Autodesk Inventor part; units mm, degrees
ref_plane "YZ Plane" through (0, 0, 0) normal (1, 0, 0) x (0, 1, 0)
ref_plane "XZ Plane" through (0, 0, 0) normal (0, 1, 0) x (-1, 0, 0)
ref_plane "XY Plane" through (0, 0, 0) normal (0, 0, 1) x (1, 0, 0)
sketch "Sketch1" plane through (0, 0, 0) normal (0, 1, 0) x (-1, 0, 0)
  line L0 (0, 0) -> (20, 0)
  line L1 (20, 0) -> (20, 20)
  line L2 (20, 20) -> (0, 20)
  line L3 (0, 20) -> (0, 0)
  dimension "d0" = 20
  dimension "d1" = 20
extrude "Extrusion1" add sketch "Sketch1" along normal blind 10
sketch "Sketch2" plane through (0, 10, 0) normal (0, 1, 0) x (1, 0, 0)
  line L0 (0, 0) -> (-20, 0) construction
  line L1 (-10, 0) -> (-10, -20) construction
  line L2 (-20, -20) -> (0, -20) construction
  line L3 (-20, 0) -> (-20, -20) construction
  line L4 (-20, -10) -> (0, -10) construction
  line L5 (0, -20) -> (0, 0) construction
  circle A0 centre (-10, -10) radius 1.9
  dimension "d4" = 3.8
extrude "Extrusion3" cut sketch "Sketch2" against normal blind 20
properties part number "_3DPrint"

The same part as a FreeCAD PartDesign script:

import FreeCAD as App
import Part
import Sketcher

V = App.Vector
Q = App.Units.Quantity

doc = App.newDocument("Part")
body = doc.addObject("PartDesign::Body", "Body")

# Sketch on XZ plane
sketch1 = doc.addObject("Sketcher::SketchObject", "Sketch")
body.addObject(sketch1)
sketch1.AttachmentSupport = (doc.XZ_Plane, [""])
sketch1.MapMode = "FlatFace"
sketch1.addGeometry([
    Part.LineSegment(V(0, 20, 0), V(0, 0, 0)),
    Part.LineSegment(V(0, 0, 0), V(-20, 0, 0)),
    Part.LineSegment(V(-20, 0, 0), V(-20, 20, 0)),
    Part.LineSegment(V(-20, 20, 0), V(0, 20, 0)),
], False)
sketch1.addConstraint([
    Sketcher.Constraint("Coincident", 0, 2, 1, 1),
    Sketcher.Constraint("Coincident", 1, 2, 2, 1),
    Sketcher.Constraint("Coincident", 2, 2, 3, 1),
    Sketcher.Constraint("Coincident", 3, 2, 0, 1),
    Sketcher.Constraint("Vertical", 0),
    Sketcher.Constraint("Horizontal", 1),
    Sketcher.Constraint("Vertical", 2),
    Sketcher.Constraint("Horizontal", 3),
    Sketcher.Constraint("Coincident", 0, 2, -1, 1),
    Sketcher.Constraint("Equal", 3, 0),
    Sketcher.Constraint("DistanceX", 1, 2, 1, 1, Q("20 mm")),
])
pad1 = doc.addObject("PartDesign::Pad", "Pad")
body.addObject(pad1)
pad1.Profile = sketch1
pad1.Length = 10
pad1.Reversed = True

# Sketch on XZ plane
sketch2 = doc.addObject("Sketcher::SketchObject", "Sketch001")
body.addObject(sketch2)
sketch2.AttachmentSupport = (doc.XZ_Plane, [""])
sketch2.MapMode = "FlatFace"
sketch2.AttachmentOffset = App.Placement(V(0, 0, -10), App.Rotation())
sketch2.addGeometry(Part.Circle(V(-10, 10, 0), V(0, 0, 1), 1.9), False)
sketch2.addConstraint([
    Sketcher.Constraint("Diameter", 0, Q("3.8 mm")),
    Sketcher.Constraint("DistanceX", 0, 3, -1, 1, Q("10 mm")),
    Sketcher.Constraint("DistanceY", -1, 1, 0, 3, Q("10 mm")),
])
pocket1 = doc.addObject("PartDesign::Pocket", "Pocket")
body.addObject(pocket1)
pocket1.Profile = sketch2
pocket1.Length = 20
pocket1.Reversed = True

doc.recompute()
